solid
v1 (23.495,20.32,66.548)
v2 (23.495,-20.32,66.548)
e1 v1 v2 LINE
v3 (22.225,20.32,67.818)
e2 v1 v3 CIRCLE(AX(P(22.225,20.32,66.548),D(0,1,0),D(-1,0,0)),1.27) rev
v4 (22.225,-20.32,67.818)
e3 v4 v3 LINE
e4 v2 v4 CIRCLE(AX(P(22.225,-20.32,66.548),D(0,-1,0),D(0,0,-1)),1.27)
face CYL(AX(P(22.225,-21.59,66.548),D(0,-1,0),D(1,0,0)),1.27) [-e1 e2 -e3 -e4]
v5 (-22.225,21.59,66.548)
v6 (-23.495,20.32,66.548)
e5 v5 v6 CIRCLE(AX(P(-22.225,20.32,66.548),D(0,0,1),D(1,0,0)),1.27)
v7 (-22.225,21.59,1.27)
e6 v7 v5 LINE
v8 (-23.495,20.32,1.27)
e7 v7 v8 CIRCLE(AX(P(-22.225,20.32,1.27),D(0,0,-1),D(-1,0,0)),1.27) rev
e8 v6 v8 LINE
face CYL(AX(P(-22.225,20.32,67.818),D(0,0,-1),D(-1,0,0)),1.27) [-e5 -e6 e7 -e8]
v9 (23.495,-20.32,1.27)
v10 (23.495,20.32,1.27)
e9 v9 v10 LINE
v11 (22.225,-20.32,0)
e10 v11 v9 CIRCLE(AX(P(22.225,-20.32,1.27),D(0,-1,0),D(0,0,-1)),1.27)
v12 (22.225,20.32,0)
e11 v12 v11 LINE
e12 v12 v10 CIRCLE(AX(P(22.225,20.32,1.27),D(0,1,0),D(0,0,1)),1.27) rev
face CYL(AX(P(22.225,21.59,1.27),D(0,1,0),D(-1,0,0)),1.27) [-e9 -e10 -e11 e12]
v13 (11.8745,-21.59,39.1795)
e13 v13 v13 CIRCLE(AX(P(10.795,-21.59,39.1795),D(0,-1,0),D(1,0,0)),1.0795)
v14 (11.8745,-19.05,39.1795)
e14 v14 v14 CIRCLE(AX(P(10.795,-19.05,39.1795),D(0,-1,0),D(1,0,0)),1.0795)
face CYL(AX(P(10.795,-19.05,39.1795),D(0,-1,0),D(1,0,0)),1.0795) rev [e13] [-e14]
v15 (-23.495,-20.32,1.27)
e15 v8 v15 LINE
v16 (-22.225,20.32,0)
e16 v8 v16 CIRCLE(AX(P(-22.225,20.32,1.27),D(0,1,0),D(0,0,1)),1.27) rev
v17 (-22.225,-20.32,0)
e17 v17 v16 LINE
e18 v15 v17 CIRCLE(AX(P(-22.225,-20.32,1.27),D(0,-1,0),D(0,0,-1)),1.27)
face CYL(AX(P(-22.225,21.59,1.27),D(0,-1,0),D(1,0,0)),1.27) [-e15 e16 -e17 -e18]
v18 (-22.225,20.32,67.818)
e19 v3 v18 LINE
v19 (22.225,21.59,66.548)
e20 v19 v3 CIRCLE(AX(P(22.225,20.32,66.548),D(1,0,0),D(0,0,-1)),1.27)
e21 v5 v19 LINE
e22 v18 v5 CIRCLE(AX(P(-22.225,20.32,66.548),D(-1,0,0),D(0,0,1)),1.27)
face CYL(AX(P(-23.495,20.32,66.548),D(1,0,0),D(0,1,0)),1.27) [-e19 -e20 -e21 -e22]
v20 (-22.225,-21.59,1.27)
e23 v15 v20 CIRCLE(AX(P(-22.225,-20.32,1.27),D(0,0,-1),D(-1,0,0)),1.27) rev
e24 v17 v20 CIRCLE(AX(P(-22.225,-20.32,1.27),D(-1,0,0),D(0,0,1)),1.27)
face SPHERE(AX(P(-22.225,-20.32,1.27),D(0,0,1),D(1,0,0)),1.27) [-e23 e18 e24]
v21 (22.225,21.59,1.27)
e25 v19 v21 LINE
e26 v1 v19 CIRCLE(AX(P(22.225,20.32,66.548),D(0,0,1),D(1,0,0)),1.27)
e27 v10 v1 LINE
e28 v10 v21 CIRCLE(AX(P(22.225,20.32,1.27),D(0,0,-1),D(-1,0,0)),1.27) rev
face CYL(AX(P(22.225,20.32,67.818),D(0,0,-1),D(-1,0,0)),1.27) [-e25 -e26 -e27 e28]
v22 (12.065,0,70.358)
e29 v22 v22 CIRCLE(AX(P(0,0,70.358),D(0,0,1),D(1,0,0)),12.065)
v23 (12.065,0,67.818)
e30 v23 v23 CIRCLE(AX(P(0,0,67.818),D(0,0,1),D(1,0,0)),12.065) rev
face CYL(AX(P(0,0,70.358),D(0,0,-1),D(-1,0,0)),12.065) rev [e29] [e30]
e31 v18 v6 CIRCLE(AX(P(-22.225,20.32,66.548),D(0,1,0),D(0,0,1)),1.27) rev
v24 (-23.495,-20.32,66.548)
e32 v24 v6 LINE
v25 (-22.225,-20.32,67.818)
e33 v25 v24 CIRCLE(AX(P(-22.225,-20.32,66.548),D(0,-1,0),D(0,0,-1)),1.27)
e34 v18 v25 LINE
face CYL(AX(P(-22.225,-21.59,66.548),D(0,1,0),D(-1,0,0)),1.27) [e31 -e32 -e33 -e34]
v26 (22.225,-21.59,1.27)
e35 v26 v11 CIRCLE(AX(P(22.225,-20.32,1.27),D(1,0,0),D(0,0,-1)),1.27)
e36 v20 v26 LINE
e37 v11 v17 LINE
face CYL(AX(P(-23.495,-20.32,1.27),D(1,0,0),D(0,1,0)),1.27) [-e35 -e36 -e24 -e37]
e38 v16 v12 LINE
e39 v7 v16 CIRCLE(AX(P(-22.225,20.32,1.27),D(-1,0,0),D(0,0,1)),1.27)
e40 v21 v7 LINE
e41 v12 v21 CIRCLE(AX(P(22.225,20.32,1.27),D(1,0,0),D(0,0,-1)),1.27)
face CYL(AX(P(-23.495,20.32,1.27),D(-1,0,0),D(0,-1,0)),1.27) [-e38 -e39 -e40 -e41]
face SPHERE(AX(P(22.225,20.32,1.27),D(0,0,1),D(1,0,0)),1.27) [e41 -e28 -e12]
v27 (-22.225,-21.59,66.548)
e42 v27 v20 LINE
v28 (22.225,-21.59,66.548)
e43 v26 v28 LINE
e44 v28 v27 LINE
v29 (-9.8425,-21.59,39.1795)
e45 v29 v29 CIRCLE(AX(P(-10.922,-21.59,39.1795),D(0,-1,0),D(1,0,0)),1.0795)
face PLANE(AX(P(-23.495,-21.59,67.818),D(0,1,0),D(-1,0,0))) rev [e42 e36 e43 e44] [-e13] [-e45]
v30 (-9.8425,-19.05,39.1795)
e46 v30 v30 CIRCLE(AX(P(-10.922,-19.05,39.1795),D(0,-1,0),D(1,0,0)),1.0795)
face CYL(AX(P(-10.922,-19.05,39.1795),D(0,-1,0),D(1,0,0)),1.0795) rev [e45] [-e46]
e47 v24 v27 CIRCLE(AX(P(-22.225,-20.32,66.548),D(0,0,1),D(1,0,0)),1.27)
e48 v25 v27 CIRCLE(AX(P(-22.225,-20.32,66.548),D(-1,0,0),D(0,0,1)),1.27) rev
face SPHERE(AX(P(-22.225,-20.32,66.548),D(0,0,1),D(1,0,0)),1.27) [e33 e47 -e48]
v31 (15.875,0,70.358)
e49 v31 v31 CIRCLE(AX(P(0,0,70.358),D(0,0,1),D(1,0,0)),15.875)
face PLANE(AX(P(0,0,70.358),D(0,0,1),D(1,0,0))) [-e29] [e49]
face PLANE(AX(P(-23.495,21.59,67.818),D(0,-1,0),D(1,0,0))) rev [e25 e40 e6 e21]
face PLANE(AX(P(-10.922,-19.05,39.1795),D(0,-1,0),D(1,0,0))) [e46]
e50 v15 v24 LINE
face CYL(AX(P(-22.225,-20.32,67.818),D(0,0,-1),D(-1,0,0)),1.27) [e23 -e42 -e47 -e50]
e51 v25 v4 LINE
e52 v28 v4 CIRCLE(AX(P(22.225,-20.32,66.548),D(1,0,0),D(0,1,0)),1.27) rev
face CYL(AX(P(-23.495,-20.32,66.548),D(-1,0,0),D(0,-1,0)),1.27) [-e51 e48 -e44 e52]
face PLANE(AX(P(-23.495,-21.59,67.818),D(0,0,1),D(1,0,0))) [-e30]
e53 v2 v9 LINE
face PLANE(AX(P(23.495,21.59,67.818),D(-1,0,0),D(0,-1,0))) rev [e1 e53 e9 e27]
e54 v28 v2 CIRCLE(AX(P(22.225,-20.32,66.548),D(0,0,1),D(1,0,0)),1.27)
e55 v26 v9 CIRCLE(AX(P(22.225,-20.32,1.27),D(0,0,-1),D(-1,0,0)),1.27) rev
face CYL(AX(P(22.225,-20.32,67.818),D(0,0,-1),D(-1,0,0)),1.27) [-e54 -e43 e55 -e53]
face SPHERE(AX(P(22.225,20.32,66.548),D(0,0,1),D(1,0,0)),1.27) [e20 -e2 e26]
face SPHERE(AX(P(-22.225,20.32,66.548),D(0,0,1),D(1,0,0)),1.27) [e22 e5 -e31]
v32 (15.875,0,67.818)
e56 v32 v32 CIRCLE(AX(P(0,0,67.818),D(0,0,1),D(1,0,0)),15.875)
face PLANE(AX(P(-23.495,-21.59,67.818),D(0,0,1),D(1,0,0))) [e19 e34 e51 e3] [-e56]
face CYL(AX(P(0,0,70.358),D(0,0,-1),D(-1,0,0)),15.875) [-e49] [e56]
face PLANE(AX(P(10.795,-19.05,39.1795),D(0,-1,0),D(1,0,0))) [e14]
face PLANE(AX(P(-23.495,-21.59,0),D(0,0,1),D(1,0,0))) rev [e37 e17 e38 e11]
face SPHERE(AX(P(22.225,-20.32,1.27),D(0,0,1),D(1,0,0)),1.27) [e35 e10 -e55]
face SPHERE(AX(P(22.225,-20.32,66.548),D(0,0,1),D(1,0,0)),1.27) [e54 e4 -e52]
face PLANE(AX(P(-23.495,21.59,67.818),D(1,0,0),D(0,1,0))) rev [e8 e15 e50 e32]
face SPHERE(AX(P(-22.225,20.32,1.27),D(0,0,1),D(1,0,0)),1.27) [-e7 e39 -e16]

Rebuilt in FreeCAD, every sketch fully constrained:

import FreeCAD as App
import Part
import Sketcher

V = App.Vector
Q = App.Units.Quantity

doc = App.newDocument("Part")
body = doc.addObject("PartDesign::Body", "Body")

# Sketch on XY plane
sketch1 = body.newObject("Sketcher::SketchObject", "Sketch")
sketch1.AttachmentSupport = (doc.getObject("XY_Plane"), [""])
sketch1.MapMode = "FlatFace"
sketch1.addGeometry(Part.LineSegment(V(-23.495, 21.59, 0), V(-23.495, -21.59, 0)), False)
sketch1.addGeometry(Part.LineSegment(V(-23.495, -21.59, 0), V(23.495, -21.59, 0)), False)
sketch1.addGeometry(Part.LineSegment(V(23.495, -21.59, 0), V(23.495, 21.59, 0)), False)
sketch1.addGeometry(Part.LineSegment(V(23.495, 21.59, 0), V(-23.495, 21.59, 0)), False)
sketch1.addConstraint(Sketcher.Constraint("Coincident", 0, 2, 1, 1))
sketch1.addConstraint(Sketcher.Constraint("Coincident", 1, 2, 2, 1))
sketch1.addConstraint(Sketcher.Constraint("Coincident", 2, 2, 3, 1))
sketch1.addConstraint(Sketcher.Constraint("Coincident", 3, 2, 0, 1))
sketch1.addConstraint(Sketcher.Constraint("Vertical", 0))
sketch1.addConstraint(Sketcher.Constraint("Horizontal", 1))
sketch1.addConstraint(Sketcher.Constraint("Vertical", 2))
sketch1.addConstraint(Sketcher.Constraint("Horizontal", 3))
sketch1.addConstraint(Sketcher.Constraint("Symmetric", 0, 2, 2, 2, -1, 1))
sketch1.addConstraint(Sketcher.Constraint("DistanceY", 0, 2, 0, 1, Q("1.7 in")))
sketch1.addConstraint(Sketcher.Constraint("DistanceX", 1, 1, 1, 2, Q("1.85 in")))
pad1 = body.newObject("PartDesign::Pad", "Pad")
pad1.Profile = sketch1
pad1.Length = Q("2.67 in")
doc.recompute()

fillet = body.newObject("PartDesign::Fillet", "Fillet")
fillet.Base = (pad1, ["Edge1"])
fillet.UseAllEdges = True
fillet.Radius = Q("0.05 in")

# Sketch on XY plane
sketch2 = body.newObject("Sketcher::SketchObject", "Sketch001")
sketch2.AttachmentSupport = (doc.getObject("XY_Plane"), [""])
sketch2.MapMode = "FlatFace"
sketch2.AttachmentOffset = App.Placement(V(0, 0, 2.67 * 25.4), App.Rotation())
sketch2.addGeometry(Part.Circle(V(0, 0, 0), V(0, 0, 1), 15.875), False)
sketch2.addGeometry(Part.Circle(V(0, 0, 0), V(0, 0, 1), 12.065), False)
sketch2.addConstraint(Sketcher.Constraint("Coincident", 0, 3, -1, 1))
sketch2.addConstraint(Sketcher.Constraint("Coincident", 1, 3, -1, 1))
sketch2.addConstraint(Sketcher.Constraint("Diameter", 0, Q("1.25 in")))
sketch2.addConstraint(Sketcher.Constraint("Diameter", 1, Q("0.95 in")))
pad2 = body.newObject("PartDesign::Pad", "Pad001")
pad2.Profile = sketch2
pad2.Length = Q("0.1 in")

# Sketch on XZ plane
sketch3 = body.newObject("Sketcher::SketchObject", "Sketch002")
sketch3.AttachmentSupport = (doc.getObject("XZ_Plane"), [""])
sketch3.MapMode = "FlatFace"
sketch3.AttachmentOffset = App.Placement(V(0, 0, 0.85 * 25.4), App.Rotation())
sketch3.addGeometry(Part.Circle(V(-10.922, 39.1795, 0), V(0, 0, 1), 1.0795), False)
sketch3.addGeometry(Part.Circle(V(10.795, 39.1795, 0), V(0, 0, 1), 1.0795), False)
sketch3.addConstraint(Sketcher.Constraint("Equal", 0, 1))
sketch3.addConstraint(Sketcher.Constraint("Horizontal", 0, 3, 1, 3))
sketch3.addConstraint(Sketcher.Constraint("Diameter", 0, Q("0.085 in")))
sketch3.addConstraint(Sketcher.Constraint("DistanceX", 0, 3, -1, 1, Q("0.43 in")))
sketch3.addConstraint(Sketcher.Constraint("DistanceX", -1, 1, 1, 3, Q("0.425 in")))
sketch3.addConstraint(Sketcher.Constraint("DistanceY", -1, 1, 0, 3, Q("1.5425 in")))
pocket1 = body.newObject("PartDesign::Pocket", "Pocket")
pocket1.Profile = sketch3
pocket1.Length = Q("0.1 in")

doc.recompute()
